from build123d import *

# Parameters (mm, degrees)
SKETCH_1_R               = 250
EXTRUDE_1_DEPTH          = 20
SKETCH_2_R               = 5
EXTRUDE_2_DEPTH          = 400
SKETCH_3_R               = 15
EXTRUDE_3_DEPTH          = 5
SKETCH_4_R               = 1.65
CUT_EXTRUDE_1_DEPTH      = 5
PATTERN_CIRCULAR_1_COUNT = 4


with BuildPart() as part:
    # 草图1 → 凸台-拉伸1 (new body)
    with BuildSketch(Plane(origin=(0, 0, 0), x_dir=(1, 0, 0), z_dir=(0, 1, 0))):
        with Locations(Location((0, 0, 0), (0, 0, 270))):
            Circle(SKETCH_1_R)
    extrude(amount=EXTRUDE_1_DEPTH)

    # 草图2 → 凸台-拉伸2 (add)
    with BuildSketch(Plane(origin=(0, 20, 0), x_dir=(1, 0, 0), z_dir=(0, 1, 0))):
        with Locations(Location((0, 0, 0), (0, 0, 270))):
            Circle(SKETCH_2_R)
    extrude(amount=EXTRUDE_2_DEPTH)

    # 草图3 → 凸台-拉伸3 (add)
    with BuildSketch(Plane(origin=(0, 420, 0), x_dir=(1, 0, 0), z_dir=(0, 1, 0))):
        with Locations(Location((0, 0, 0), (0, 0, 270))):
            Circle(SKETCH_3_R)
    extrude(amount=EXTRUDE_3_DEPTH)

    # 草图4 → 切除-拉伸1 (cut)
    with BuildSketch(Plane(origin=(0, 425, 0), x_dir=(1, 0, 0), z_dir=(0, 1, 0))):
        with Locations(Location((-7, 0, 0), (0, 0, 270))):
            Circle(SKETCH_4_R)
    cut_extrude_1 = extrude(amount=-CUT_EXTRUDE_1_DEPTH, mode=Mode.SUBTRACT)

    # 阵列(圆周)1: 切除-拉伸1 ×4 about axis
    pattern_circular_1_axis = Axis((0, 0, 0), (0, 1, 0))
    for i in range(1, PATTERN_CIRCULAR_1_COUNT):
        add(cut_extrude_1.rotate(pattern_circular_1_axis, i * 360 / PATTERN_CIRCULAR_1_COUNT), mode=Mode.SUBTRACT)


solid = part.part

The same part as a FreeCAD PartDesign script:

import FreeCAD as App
import Part
import Sketcher
Q = App.Units.Quantity

doc = App.newDocument("Part")
params = doc.addObject("Spreadsheet::Sheet", "Params")
for row, (alias, value) in enumerate([
    ("sketch1_diameter", "500 mm"),
    ("pad1_length", "20 mm"),
    ("sketch2_diameter", "10 mm"),
    ("pad2_length", "400 mm"),
    ("sketch3_diameter", "30 mm"),
    ("pad3_length", "5 mm"),
    ("sketch4_diameter", "3.3 mm"),
    ("pocket1_length", "5 mm"),
], start=1):
    params.set(f"A{row}", alias)
    params.set(f"B{row}", "=" + value)
    params.setAlias(f"B{row}", alias)

body = doc.addObject("PartDesign::Body", "Body")

# Sketch on XZ plane
sketch1 = body.newObject("Sketcher::SketchObject", "Sketch")
sketch1.AttachmentSupport = (doc.getObject("XZ_Plane"), [""])
sketch1.MapMode = "FlatFace"
sketch1.addGeometry(Part.Circle(App.Vector(0, 0, 0), App.Vector(0, 0, 1), 250), False)
sketch1.addConstraint([
    Sketcher.Constraint("Coincident", 0, 3, -1, 1),
    Sketcher.Constraint("Diameter", 0, Q("500 mm")),
])
sketch1.setExpression("Constraints[1]", "Params.sketch1_diameter")
pad1 = body.newObject("PartDesign::Pad", "Pad")
pad1.Profile = sketch1
pad1.setExpression("Length", "Params.pad1_length")
pad1.Reversed = True

# Sketch on XZ plane
sketch2 = body.newObject("Sketcher::SketchObject", "Sketch001")
sketch2.AttachmentSupport = (doc.getObject("XZ_Plane"), [""])
sketch2.MapMode = "FlatFace"
sketch2.AttachmentOffset = App.Placement(App.Vector(0, 0, -20), App.Rotation())
sketch2.addGeometry(Part.Circle(App.Vector(0, 0, 0), App.Vector(0, 0, 1), 5), False)
sketch2.addConstraint([
    Sketcher.Constraint("Coincident", 0, 3, -1, 1),
    Sketcher.Constraint("Diameter", 0, Q("10 mm")),
])
sketch2.setExpression("Constraints[1]", "Params.sketch2_diameter")
pad2 = body.newObject("PartDesign::Pad", "Pad001")
pad2.Profile = sketch2
pad2.setExpression("Length", "Params.pad2_length")
pad2.Reversed = True

# Sketch on XZ plane
sketch3 = body.newObject("Sketcher::SketchObject", "Sketch002")
sketch3.AttachmentSupport = (doc.getObject("XZ_Plane"), [""])
sketch3.MapMode = "FlatFace"
sketch3.AttachmentOffset = App.Placement(App.Vector(0, 0, -420), App.Rotation())
sketch3.addGeometry(Part.Circle(App.Vector(0, 0, 0), App.Vector(0, 0, 1), 15), False)
sketch3.addConstraint([
    Sketcher.Constraint("Coincident", 0, 3, -1, 1),
    Sketcher.Constraint("Diameter", 0, Q("30 mm")),
])
sketch3.setExpression("Constraints[1]", "Params.sketch3_diameter")
pad3 = body.newObject("PartDesign::Pad", "Pad002")
pad3.Profile = sketch3
pad3.setExpression("Length", "Params.pad3_length")
pad3.Reversed = True

# Sketch on XZ plane
sketch4 = body.newObject("Sketcher::SketchObject", "Sketch003")
sketch4.AttachmentSupport = (doc.getObject("XZ_Plane"), [""])
sketch4.MapMode = "FlatFace"
sketch4.AttachmentOffset = App.Placement(App.Vector(0, 0, -425), App.Rotation())
sketch4.addGeometry(Part.Circle(App.Vector(-7, 0, 0), App.Vector(0, 0, 1), 1.65), False)
sketch4.addConstraint([
    Sketcher.Constraint("PointOnObject", 0, 3, -1),
    Sketcher.Constraint("Diameter", 0, Q("3.3 mm")),
    Sketcher.Constraint("DistanceX", 0, 3, -1, 1, Q("7 mm")),
])
sketch4.setExpression("Constraints[1]", "Params.sketch4_diameter")
pocket1 = body.newObject("PartDesign::Pocket", "Pocket")
pocket1.Profile = sketch4
pocket1.setExpression("Length", "Params.pocket1_length")
pocket1.Reversed = True
doc.recompute()

polarpattern = body.newObject("PartDesign::PolarPattern", "PolarPattern")
polarpattern.Originals = [pocket1]
polarpattern.Axis = (doc.getObject("Y_Axis"), [""])
polarpattern.Angle = 360
polarpattern.Occurrences = 4
body.Tip = polarpattern

doc.recompute()
